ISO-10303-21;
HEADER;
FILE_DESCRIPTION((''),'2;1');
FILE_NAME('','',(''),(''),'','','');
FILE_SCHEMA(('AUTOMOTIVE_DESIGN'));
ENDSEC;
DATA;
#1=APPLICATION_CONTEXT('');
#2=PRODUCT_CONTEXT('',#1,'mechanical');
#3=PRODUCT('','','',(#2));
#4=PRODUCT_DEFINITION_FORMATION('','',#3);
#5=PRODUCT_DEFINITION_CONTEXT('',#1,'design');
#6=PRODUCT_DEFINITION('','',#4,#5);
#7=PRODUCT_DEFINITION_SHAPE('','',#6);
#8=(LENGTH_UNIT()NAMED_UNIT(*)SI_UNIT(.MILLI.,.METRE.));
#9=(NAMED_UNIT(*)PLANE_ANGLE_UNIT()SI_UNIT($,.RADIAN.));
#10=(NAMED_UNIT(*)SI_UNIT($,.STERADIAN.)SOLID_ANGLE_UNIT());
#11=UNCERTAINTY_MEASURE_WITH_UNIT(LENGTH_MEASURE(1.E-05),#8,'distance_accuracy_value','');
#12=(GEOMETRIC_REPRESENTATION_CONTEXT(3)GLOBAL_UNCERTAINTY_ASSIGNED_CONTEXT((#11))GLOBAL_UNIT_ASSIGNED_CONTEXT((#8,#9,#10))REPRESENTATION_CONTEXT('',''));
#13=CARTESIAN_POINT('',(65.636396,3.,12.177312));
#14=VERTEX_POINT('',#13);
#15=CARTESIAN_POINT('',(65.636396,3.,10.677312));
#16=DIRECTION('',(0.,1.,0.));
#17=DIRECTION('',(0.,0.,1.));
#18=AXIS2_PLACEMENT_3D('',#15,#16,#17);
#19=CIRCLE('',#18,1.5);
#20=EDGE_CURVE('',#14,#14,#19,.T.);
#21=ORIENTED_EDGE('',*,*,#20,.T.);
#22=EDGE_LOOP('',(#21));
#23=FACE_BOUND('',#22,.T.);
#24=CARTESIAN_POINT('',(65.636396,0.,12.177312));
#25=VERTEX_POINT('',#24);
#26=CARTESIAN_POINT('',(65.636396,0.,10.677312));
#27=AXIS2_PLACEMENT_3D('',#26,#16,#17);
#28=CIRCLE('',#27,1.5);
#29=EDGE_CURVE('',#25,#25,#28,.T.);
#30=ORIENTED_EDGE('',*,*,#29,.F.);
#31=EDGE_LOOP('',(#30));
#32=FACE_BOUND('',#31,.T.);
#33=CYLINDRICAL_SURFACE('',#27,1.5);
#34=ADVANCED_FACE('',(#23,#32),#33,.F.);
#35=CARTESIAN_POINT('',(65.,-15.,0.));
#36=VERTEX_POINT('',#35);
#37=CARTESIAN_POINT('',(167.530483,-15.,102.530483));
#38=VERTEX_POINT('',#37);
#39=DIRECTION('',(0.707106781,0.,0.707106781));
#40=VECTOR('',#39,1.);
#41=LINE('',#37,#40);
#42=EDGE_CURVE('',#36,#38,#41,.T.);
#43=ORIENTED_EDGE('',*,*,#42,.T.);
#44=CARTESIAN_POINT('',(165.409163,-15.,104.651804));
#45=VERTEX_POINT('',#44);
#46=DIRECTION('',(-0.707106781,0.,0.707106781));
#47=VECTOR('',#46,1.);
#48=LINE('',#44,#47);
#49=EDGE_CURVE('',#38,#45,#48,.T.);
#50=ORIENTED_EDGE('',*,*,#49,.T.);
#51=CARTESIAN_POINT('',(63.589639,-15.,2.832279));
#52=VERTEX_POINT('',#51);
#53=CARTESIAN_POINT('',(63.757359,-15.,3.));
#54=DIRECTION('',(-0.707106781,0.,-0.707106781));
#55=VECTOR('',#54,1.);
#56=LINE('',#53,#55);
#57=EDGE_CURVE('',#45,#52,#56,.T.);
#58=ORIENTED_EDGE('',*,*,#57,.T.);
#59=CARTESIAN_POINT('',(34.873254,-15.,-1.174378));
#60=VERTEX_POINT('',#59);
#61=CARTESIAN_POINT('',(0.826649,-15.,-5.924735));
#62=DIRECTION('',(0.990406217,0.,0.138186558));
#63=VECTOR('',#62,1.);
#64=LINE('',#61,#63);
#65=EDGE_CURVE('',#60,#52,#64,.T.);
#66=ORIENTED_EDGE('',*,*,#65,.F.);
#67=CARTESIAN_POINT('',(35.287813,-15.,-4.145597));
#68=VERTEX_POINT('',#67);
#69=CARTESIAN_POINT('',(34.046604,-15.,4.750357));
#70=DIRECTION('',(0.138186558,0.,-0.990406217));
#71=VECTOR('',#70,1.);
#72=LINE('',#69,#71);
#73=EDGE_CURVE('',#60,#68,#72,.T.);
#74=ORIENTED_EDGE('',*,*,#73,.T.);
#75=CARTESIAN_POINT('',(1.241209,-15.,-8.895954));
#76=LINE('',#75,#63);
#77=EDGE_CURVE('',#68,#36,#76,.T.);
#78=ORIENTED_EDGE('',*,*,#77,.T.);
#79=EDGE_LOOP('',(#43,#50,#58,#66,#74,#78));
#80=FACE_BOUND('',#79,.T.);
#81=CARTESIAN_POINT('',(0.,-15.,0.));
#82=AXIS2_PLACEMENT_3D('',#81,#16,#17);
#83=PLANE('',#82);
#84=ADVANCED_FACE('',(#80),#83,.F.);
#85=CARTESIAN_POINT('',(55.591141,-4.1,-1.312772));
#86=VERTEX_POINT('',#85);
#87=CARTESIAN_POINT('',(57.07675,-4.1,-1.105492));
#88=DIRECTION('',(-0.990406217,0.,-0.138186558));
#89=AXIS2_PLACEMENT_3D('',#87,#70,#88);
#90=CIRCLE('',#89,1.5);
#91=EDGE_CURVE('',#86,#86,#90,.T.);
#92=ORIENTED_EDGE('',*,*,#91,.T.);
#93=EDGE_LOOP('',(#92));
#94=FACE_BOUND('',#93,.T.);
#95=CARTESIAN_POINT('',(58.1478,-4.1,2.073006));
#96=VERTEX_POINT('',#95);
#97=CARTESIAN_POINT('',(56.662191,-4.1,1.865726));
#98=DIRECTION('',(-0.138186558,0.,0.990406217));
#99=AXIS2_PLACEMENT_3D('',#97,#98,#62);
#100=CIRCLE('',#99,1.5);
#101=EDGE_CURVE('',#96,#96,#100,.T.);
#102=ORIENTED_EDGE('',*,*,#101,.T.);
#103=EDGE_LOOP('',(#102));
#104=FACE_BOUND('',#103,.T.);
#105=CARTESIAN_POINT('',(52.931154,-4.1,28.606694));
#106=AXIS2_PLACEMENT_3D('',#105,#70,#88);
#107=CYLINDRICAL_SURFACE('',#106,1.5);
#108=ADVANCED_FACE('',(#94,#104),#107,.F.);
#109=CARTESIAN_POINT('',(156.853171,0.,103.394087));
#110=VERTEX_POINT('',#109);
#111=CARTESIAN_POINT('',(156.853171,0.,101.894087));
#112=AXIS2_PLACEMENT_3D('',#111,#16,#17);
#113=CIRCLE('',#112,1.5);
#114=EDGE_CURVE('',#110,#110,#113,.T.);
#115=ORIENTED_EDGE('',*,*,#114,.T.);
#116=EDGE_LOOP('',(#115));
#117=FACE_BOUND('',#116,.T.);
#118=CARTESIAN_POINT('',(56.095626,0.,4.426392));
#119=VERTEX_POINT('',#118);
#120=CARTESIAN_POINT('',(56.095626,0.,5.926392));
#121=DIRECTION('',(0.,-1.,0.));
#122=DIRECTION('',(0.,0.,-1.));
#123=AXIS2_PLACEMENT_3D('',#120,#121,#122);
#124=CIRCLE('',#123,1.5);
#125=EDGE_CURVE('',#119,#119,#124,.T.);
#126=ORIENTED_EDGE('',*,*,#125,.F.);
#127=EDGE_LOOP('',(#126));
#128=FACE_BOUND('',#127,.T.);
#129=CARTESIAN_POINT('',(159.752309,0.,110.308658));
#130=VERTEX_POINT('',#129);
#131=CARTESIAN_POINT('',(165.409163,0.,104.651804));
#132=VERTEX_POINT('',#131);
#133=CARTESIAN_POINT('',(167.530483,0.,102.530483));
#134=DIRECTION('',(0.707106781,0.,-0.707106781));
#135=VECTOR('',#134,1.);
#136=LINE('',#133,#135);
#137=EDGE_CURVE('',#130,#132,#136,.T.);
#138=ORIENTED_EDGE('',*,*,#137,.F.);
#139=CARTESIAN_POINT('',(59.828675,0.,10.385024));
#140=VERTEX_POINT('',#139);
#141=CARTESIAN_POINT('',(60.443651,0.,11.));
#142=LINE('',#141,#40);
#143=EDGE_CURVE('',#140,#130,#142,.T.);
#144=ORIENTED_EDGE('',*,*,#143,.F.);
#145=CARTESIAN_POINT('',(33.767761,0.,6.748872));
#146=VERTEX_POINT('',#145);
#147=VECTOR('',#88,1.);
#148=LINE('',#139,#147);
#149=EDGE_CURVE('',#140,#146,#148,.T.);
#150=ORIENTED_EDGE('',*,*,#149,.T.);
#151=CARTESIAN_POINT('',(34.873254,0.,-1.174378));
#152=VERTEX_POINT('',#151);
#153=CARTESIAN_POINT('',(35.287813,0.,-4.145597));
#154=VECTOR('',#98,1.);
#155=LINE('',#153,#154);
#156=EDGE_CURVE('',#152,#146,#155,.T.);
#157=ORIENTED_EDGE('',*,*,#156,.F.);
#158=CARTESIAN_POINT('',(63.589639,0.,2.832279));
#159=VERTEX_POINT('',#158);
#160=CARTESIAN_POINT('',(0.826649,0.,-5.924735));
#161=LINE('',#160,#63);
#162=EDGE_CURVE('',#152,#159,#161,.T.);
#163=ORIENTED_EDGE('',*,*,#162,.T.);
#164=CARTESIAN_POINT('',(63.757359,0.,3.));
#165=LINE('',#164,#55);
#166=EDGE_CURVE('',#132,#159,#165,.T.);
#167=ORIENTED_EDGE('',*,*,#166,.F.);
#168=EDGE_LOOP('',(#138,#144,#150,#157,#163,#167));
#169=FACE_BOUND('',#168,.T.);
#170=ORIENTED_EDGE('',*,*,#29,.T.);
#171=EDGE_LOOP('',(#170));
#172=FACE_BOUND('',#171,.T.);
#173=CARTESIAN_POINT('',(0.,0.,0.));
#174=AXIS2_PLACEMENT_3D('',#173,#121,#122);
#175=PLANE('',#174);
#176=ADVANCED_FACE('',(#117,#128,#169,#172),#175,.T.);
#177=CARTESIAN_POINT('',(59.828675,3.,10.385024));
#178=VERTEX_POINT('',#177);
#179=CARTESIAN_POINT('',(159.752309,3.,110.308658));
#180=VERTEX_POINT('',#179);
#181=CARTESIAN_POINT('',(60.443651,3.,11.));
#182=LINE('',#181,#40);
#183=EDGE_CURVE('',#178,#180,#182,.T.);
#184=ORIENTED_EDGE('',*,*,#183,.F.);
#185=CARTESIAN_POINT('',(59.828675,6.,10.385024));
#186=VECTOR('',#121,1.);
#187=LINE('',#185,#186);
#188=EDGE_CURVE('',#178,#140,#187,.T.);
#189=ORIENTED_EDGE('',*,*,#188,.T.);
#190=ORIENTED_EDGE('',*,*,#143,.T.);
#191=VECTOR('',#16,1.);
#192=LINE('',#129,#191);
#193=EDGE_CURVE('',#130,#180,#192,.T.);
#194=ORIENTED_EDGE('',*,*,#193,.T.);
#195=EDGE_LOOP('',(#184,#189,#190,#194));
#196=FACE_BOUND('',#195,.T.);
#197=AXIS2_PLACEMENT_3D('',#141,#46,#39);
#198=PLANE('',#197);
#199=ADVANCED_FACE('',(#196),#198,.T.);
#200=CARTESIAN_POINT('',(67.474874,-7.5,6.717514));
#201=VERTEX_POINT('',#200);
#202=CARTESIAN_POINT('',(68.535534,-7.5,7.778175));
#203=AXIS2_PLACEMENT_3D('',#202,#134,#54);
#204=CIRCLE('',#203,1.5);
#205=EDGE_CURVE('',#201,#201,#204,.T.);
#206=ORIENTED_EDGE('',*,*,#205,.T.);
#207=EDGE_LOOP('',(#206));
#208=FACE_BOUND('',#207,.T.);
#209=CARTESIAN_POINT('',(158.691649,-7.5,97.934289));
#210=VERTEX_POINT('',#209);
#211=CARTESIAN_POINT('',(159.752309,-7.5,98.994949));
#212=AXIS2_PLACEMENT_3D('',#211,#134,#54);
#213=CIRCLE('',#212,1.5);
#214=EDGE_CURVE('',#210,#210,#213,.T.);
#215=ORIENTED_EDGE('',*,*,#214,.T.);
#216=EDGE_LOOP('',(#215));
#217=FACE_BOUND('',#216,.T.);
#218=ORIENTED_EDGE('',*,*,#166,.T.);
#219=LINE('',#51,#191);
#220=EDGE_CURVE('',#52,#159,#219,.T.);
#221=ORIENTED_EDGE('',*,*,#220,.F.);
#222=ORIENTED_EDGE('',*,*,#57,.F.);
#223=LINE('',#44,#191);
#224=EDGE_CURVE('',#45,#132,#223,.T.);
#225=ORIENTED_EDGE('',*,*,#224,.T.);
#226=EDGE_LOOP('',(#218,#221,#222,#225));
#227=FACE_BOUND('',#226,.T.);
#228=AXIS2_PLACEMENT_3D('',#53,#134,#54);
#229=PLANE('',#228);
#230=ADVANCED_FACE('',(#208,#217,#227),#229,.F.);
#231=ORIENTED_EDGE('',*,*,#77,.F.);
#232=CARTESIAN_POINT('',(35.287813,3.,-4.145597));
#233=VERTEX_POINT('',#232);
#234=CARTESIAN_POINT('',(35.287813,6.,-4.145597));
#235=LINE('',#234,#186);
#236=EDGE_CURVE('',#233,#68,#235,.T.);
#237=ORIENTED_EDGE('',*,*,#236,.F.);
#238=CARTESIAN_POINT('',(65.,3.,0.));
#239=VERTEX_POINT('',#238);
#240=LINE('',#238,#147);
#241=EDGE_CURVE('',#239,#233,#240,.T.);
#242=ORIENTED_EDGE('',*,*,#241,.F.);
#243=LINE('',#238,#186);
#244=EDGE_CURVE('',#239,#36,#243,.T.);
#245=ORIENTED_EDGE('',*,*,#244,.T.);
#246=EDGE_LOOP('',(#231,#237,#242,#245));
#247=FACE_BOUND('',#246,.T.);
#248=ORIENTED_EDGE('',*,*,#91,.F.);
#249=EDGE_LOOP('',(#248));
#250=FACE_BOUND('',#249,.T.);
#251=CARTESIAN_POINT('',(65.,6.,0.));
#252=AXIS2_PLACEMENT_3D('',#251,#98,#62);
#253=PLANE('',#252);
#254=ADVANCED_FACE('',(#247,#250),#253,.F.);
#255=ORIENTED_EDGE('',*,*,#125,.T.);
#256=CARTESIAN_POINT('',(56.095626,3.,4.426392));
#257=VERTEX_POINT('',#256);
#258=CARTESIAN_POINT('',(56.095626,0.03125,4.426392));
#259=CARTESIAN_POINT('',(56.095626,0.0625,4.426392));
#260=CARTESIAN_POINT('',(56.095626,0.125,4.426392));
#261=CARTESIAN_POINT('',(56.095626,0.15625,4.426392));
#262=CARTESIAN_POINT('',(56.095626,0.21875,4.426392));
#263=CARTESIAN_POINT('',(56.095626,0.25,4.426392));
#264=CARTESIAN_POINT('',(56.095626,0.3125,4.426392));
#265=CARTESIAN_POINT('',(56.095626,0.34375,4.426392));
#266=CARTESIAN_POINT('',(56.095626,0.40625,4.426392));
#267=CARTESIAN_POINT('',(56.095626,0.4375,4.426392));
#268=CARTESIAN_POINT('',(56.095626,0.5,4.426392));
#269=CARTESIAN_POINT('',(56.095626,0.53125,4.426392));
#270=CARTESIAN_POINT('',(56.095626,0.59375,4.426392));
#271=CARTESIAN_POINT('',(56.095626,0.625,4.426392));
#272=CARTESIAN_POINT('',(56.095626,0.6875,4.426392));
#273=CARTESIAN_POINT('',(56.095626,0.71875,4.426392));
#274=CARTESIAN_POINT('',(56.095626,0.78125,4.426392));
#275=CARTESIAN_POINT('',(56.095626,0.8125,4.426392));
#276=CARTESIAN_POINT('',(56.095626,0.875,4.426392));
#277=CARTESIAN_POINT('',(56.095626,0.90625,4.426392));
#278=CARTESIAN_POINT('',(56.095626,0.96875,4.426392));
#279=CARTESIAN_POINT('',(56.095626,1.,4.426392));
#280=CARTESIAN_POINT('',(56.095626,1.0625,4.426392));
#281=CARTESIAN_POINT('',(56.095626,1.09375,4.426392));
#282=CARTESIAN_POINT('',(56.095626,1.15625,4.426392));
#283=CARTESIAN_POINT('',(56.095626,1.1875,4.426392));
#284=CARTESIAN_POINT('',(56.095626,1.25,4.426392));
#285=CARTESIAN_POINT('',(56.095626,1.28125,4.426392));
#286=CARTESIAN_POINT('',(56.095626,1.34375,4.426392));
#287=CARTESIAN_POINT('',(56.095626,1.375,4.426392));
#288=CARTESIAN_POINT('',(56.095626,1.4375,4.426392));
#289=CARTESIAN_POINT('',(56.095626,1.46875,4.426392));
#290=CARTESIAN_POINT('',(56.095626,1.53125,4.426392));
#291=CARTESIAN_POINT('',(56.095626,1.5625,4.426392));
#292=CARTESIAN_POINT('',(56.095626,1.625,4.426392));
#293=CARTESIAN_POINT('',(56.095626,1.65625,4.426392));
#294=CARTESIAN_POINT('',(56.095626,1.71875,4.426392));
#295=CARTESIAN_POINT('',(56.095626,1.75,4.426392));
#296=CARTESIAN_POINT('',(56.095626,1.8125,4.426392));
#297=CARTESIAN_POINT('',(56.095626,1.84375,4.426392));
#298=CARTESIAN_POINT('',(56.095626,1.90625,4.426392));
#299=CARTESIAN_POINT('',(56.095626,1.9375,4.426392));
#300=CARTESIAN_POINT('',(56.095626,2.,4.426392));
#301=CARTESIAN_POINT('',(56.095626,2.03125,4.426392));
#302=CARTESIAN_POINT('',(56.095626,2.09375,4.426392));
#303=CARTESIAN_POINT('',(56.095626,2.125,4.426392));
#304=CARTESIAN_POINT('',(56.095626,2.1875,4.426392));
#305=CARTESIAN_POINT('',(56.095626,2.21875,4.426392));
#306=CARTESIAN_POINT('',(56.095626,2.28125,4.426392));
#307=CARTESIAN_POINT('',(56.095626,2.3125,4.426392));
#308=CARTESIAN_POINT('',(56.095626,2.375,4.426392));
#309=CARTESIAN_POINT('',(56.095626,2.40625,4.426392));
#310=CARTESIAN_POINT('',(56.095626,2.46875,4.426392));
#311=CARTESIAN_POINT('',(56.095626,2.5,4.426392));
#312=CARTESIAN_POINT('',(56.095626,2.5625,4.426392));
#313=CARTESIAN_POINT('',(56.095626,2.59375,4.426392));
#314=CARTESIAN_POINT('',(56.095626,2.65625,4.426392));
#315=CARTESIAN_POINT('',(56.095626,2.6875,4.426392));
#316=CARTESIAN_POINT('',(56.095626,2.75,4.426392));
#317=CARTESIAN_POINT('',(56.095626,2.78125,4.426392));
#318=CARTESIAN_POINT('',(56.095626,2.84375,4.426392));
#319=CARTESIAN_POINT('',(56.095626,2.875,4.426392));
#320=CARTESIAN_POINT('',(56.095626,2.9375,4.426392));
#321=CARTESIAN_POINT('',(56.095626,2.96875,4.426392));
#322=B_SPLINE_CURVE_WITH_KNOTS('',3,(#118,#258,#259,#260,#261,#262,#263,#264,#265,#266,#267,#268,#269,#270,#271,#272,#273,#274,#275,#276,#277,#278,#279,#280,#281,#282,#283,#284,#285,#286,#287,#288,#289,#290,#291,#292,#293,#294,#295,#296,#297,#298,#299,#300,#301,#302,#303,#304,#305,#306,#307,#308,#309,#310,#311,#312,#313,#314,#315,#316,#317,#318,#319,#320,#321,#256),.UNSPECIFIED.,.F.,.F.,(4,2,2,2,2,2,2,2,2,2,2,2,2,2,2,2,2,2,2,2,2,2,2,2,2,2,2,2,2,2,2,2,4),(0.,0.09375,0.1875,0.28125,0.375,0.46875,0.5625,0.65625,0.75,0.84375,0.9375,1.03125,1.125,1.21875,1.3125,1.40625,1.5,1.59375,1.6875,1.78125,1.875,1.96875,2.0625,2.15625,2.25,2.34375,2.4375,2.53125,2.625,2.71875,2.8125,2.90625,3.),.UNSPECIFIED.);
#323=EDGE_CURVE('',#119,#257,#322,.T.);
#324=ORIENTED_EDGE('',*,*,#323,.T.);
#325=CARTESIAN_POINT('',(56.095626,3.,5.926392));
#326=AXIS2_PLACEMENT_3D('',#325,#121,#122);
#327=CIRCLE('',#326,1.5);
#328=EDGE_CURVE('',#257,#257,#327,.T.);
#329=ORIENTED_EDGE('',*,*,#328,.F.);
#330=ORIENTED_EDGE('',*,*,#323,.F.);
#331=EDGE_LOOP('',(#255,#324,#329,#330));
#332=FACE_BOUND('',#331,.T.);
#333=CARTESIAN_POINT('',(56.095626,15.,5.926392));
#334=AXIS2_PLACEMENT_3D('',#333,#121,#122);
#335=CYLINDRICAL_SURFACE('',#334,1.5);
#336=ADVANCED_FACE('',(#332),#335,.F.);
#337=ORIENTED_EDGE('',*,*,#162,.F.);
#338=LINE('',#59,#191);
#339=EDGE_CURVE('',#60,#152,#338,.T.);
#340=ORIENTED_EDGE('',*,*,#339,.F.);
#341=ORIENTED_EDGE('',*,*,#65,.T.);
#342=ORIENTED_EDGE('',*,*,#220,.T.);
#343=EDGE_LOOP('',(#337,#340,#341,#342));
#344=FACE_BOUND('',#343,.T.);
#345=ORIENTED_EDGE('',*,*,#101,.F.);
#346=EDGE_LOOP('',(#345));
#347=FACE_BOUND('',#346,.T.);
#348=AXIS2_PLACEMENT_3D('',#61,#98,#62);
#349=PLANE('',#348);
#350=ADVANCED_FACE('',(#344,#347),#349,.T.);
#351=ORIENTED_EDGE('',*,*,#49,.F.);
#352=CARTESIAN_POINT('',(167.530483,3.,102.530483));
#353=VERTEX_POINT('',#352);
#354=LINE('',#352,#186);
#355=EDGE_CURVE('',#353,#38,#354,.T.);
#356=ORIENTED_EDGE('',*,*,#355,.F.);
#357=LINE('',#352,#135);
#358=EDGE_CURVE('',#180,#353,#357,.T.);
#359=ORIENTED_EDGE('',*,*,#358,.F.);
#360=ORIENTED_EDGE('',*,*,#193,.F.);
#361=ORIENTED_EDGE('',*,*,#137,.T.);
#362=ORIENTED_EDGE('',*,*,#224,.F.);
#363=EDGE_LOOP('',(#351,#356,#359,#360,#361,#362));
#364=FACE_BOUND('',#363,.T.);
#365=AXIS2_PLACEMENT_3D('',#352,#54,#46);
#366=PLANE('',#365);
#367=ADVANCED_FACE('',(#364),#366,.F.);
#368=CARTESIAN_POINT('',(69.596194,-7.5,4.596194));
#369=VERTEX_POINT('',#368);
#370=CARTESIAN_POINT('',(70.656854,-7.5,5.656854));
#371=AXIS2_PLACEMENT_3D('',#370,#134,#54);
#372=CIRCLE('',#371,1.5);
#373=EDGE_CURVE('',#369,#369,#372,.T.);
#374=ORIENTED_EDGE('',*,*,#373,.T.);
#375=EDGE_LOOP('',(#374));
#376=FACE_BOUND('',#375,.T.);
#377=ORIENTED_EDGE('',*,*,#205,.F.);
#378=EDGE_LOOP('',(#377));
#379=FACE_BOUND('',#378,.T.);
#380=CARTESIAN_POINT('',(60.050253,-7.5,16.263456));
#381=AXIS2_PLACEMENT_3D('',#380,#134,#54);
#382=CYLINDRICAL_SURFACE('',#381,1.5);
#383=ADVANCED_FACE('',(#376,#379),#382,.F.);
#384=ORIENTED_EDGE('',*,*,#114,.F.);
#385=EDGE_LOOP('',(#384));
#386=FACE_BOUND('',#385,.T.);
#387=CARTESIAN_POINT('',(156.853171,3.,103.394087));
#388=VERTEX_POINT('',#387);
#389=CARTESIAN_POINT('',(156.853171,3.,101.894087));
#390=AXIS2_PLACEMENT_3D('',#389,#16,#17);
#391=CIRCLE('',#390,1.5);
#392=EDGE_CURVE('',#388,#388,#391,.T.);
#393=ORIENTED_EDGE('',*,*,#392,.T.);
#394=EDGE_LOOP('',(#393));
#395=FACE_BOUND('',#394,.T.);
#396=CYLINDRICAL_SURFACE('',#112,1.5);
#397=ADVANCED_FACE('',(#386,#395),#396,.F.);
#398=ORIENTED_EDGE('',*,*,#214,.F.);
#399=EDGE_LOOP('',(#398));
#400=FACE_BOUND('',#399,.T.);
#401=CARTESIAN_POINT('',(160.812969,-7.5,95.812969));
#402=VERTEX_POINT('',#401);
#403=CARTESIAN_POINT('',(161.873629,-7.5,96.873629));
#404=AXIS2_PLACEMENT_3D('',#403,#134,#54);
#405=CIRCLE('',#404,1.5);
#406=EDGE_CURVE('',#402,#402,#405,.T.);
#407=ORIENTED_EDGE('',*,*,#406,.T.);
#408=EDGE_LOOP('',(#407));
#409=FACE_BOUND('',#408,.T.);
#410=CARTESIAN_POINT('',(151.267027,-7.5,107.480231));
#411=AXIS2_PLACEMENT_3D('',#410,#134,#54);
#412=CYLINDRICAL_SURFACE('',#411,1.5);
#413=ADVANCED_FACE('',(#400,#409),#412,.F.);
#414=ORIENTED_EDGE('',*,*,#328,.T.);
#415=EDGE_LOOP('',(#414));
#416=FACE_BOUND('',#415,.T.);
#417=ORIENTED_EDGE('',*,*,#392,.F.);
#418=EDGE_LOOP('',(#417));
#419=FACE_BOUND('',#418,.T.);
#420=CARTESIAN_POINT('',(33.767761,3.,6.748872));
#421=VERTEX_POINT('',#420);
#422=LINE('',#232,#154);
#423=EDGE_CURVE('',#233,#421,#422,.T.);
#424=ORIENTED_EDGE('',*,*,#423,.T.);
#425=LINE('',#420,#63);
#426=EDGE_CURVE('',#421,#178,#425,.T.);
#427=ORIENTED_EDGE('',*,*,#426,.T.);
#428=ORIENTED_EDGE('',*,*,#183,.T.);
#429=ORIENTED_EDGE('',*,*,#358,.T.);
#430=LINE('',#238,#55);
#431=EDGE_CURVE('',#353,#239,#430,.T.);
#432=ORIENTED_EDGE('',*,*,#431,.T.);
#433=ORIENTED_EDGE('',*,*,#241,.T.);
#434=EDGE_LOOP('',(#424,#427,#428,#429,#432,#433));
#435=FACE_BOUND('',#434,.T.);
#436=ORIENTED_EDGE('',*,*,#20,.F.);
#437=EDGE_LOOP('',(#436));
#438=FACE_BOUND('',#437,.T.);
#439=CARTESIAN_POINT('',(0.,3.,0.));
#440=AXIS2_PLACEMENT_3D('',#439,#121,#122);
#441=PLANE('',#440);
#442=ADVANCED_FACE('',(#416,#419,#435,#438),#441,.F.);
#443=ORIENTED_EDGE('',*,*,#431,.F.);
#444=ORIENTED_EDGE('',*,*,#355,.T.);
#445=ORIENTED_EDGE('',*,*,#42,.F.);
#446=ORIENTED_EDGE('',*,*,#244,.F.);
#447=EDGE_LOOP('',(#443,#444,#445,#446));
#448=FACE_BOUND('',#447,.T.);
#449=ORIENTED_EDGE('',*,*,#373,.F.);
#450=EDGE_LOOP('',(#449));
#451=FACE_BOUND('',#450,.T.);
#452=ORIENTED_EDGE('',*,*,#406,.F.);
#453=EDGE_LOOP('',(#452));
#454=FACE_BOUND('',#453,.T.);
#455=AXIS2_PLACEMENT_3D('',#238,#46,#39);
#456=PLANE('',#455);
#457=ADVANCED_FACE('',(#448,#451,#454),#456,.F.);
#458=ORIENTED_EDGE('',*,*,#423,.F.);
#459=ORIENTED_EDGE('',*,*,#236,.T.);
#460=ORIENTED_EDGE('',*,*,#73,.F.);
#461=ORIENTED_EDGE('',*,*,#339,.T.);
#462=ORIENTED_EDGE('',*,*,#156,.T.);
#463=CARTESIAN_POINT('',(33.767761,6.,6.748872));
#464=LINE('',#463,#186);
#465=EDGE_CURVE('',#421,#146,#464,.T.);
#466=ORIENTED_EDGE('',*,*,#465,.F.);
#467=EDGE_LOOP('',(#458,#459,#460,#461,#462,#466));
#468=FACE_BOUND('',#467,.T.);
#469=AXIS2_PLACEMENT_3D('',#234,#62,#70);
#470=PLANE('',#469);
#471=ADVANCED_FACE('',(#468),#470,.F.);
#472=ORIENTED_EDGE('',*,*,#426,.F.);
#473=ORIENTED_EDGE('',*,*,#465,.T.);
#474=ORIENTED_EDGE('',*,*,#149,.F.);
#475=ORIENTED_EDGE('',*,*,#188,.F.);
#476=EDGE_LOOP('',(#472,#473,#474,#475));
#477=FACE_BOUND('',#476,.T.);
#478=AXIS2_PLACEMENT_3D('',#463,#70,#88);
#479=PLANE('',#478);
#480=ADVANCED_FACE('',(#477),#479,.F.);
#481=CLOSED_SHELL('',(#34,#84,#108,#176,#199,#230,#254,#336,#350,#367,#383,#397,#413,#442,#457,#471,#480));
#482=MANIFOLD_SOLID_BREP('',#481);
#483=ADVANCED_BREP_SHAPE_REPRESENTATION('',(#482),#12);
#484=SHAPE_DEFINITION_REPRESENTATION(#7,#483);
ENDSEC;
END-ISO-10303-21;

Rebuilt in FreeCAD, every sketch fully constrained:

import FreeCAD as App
import Part
import Sketcher

V = App.Vector
Q = App.Units.Quantity

doc = App.newDocument("Part")
body = doc.addObject("PartDesign::Body", "Body")

# Sketch on XZ plane
sketch1 = body.newObject("Sketcher::SketchObject", "Sketch")
sketch1.AttachmentSupport = (doc.getObject("XZ_Plane"), [""])
sketch1.MapMode = "FlatFace"
sketch1.addGeometry([
    Part.LineSegment(V(65, 0, 0), V(35, 0, 0)),  # 0
    Part.LineSegment(V(35, 0, 0), V(35, 8, 0)),  # 1
    Part.LineSegment(V(35, 8, 0), V(61.7, 8, 0)),  # 2
    Part.LineSegment(V(61.7, 8, 0), V(161.9, 108.2, 0)),  # 3
    Part.LineSegment(V(161.9, 108.2, 0), V(167.5, 102.5, 0)),  # 4
    Part.LineSegment(V(167.5, 102.5, 0), V(65, 0, 0)),  # 5
    Part.Circle(V(159, 99.7, 0), V(0, 0, 1), 1.5),  # 6
    Part.Circle(V(67.8, 8.5, 0), V(0, 0, 1), 1.5),  # 7
    Part.Circle(V(50, 4, 0), V(0, 0, 1), 1.5),  # 8
], False)
sketch1.addConstraint([
    Sketcher.Constraint("Coincident", 0, 2, 1, 1),
    Sketcher.Constraint("Coincident", 1, 2, 2, 1),
    Sketcher.Constraint("Coincident", 2, 2, 3, 1),
    Sketcher.Constraint("Coincident", 3, 2, 4, 1),
    Sketcher.Constraint("Coincident", 4, 2, 5, 1),
    Sketcher.Constraint("Coincident", 5, 2, 0, 1),
    Sketcher.Constraint("Horizontal", 0),
    Sketcher.Constraint("Vertical", 1),
    Sketcher.Constraint("Horizontal", 2),
    Sketcher.Constraint("Equal", 6, 7),
    Sketcher.Constraint("Equal", 7, 8),
    Sketcher.Constraint("PointOnObject", 0, 2, -1),
    Sketcher.Constraint("Perpendicular", 3, 4),
    Sketcher.Constraint("Perpendicular", 4, 5),
    Sketcher.Constraint("Diameter", 6, 3.0),
    Sketcher.Constraint("DistanceX", 0, 2, 0, 1, 30.0),
    Sketcher.Constraint("DistanceY", 1, 1, 1, 2, 8.0),
    Sketcher.Constraint("Angle", 3, Q("45 deg")),
    Sketcher.Constraint("Distance", 4, 8.0),
    Sketcher.Constraint("Distance", 5, 145.0),
    Sketcher.Constraint("DistanceX", -1, 1, 8, 3, 50.0),
    Sketcher.Constraint("DistanceY", -1, 1, 8, 3, 4.0),
    Sketcher.Constraint("DistanceX", -1, 1, 0, 2, 35.0),
    Sketcher.Constraint("DistanceX", -1, 1, 6, 3, 159.045202),
    Sketcher.Constraint("DistanceX", 7, 3, 3, 2, 94.045202),
    Sketcher.Constraint("DistanceY", 7, 3, 4, 2, 94.045202),
    Sketcher.Constraint("DistanceY", 6, 3, 3, 2, 8.485281),
])
pad1 = body.newObject("PartDesign::Pad", "Pad")
pad1.Profile = sketch1
pad1.Length = 3
pad1.Reversed = True
body2 = doc.addObject("PartDesign::Body", "Body001")

# Sketch on XZ plane
sketch2 = body2.newObject("Sketcher::SketchObject", "Sketch001")
sketch2.AttachmentSupport = (doc.getObject("XZ_Plane001"), [""])
sketch2.MapMode = "FlatFace"
sketch2.addGeometry([
    Part.LineSegment(V(-35, 0, 0), V(-65, 0, 0)),  # 0
    Part.LineSegment(V(-65, 0, 0), V(-167.5, 102.5, 0)),  # 1
    Part.LineSegment(V(-167.5, 102.5, 0), V(-161.9, 108.2, 0)),  # 2
    Part.LineSegment(V(-161.9, 108.2, 0), V(-61.7, 8, 0)),  # 3
    Part.LineSegment(V(-61.7, 8, 0), V(-35, 8, 0)),  # 4
    Part.LineSegment(V(-35, 8, 0), V(-35, 0, 0)),  # 5
    Part.Circle(V(-159, 99.7, 0), V(0, 0, 1), 1.5),  # 6
    Part.Circle(V(-67.8, 8.5, 0), V(0, 0, 1), 1.5),  # 7
    Part.Circle(V(-50, 4, 0), V(0, 0, 1), 1.5),  # 8
], False)
sketch2.addConstraint([
    Sketcher.Constraint("Coincident", 0, 2, 1, 1),
    Sketcher.Constraint("Coincident", 1, 2, 2, 1),
    Sketcher.Constraint("Coincident", 2, 2, 3, 1),
    Sketcher.Constraint("Coincident", 3, 2, 4, 1),
    Sketcher.Constraint("Coincident", 4, 2, 5, 1),
    Sketcher.Constraint("Coincident", 5, 2, 0, 1),
    Sketcher.Constraint("Horizontal", 0),
    Sketcher.Constraint("Horizontal", 4),
    Sketcher.Constraint("Vertical", 5),
    Sketcher.Constraint("Equal", 6, 7),
    Sketcher.Constraint("Equal", 7, 8),
    Sketcher.Constraint("PointOnObject", 0, 2, -1),
    Sketcher.Constraint("Perpendicular", 1, 2),
    Sketcher.Constraint("Perpendicular", 2, 3),
    Sketcher.Constraint("Diameter", 6, 3.0),
    Sketcher.Constraint("DistanceX", 0, 2, 0, 1, 30.0),
    Sketcher.Constraint("DistanceY", 5, 2, 5, 1, 8.0),
    Sketcher.Constraint("Angle", 1, Q("135 deg")),
    Sketcher.Constraint("Distance", 1, 145.0),
    Sketcher.Constraint("Distance", 2, 8.0),
    Sketcher.Constraint("DistanceX", 8, 3, -1, 1, 50.0),
    Sketcher.Constraint("DistanceY", -1, 1, 8, 3, 4.0),
    Sketcher.Constraint("DistanceX", 0, 2, -1, 1, 65.0),
    Sketcher.Constraint("DistanceX", 6, 3, -1, 1, 159.045202),
    Sketcher.Constraint("DistanceY", 7, 3, 1, 2, 94.045202),
    Sketcher.Constraint("DistanceX", 2, 2, 7, 3, 94.045202),
    Sketcher.Constraint("DistanceY", 6, 3, 2, 2, 8.485281),
])
pad2 = body2.newObject("PartDesign::Pad", "Pad001")
pad2.Profile = sketch2
pad2.Length = 3
pad2.Reversed = True
body.AllowCompound = True
doc.recompute()

boolean = body.newObject("PartDesign::Boolean", "Boolean")
boolean.Type = "Fuse"
boolean.addObjects([body2])

# Sketch on XZ plane
sketch3 = body.newObject("Sketcher::SketchObject", "Sketch002")
sketch3.AttachmentSupport = (doc.getObject("XZ_Plane"), [""])
sketch3.MapMode = "FlatFace"
sketch3.AttachmentOffset = App.Placement(V(0, 0, -3), App.Rotation())
sketch3.addGeometry([
    Part.LineSegment(V(-161.9, 108.2, 0), V(-159.8, 110.3, 0)),  # 0
    Part.LineSegment(V(-159.8, 110.3, 0), V(-60.4, 11, 0)),  # 1
    Part.LineSegment(V(-60.4, 11, 0), V(-35, 11, 0)),  # 2
    Part.LineSegment(V(-35, 11, 0), V(-35, 8, 0)),  # 3
    Part.LineSegment(V(-35, 8, 0), V(-61.7, 8, 0)),  # 4
    Part.LineSegment(V(-61.7, 8, 0), V(-161.9, 108.2, 0)),  # 5
    Part.LineSegment(V(61.7, 8, 0), V(35, 8, 0)),  # 6
    Part.LineSegment(V(35, 8, 0), V(35, 11, 0)),  # 7
    Part.LineSegment(V(35, 11, 0), V(60.4, 11, 0)),  # 8
    Part.LineSegment(V(60.4, 11, 0), V(159.8, 110.3, 0)),  # 9
    Part.LineSegment(V(159.8, 110.3, 0), V(161.9, 108.2, 0)),  # 10
    Part.LineSegment(V(161.9, 108.2, 0), V(61.7, 8, 0)),  # 11
], False)
sketch3.addConstraint([
    Sketcher.Constraint("Coincident", 0, 2, 1, 1),
    Sketcher.Constraint("Coincident", 1, 2, 2, 1),
    Sketcher.Constraint("Coincident", 2, 2, 3, 1),
    Sketcher.Constraint("Coincident", 3, 2, 4, 1),
    Sketcher.Constraint("Coincident", 4, 2, 5, 1),
    Sketcher.Constraint("Coincident", 5, 2, 0, 1),
    Sketcher.Constraint("Coincident", 6, 2, 7, 1),
    Sketcher.Constraint("Coincident", 7, 2, 8, 1),
    Sketcher.Constraint("Coincident", 8, 2, 9, 1),
    Sketcher.Constraint("Coincident", 9, 2, 10, 1),
    Sketcher.Constraint("Coincident", 10, 2, 11, 1),
    Sketcher.Constraint("Coincident", 11, 2, 6, 1),
    Sketcher.Constraint("Horizontal", 2),
    Sketcher.Constraint("Vertical", 3),
    Sketcher.Constraint("Horizontal", 4),
    Sketcher.Constraint("Horizontal", 6),
    Sketcher.Constraint("Vertical", 7),
    Sketcher.Constraint("Horizontal", 8),
    Sketcher.Constraint("Symmetric", 3, 2, 6, 2, -2),
    Sketcher.Constraint("Symmetric", 1, 2, 8, 2, -2),
    Sketcher.Constraint("Symmetric", 0, 2, 9, 2, -2),
    Sketcher.Constraint("Symmetric", 5, 2, 10, 2, -2),
    Sketcher.Constraint("Perpendicular", 0, 1),
    Sketcher.Constraint("Parallel", 1, 5),
    Sketcher.Constraint("Perpendicular", 5, 9),
    Sketcher.Constraint("Perpendicular", 10, 11),
    Sketcher.Constraint("DistanceY", 3, 2, 3, 1, 3.0),
    Sketcher.Constraint("Distance", 0, 3.0),
    Sketcher.Constraint("DistanceY", -1, 1, 1, 2, 11.0),
    Sketcher.Constraint("DistanceX", 2, 2, -1, 1, 35.0),
    Sketcher.Constraint("DistanceX", 2, 1, 2, 2, 25.443651),
    Sketcher.Constraint("Distance", 1, 140.443651),
])
pad3 = body.newObject("PartDesign::Pad", "Pad002")
pad3.Profile = sketch3
pad3.Length = 3

# Sketch on XZ plane
sketch4 = body.newObject("Sketcher::SketchObject", "Sketch003")
sketch4.AttachmentSupport = (doc.getObject("XZ_Plane"), [""])
sketch4.MapMode = "FlatFace"
sketch4.AttachmentOffset = App.Placement(V(0, 0, -3), App.Rotation())
sketch4.addGeometry([
    Part.Circle(V(-50, 7.1, 0), V(0, 0, 1), 1.5),  # 0
    Part.Circle(V(-65.6, 10.7, 0), V(0, 0, 1), 1.5),  # 1
    Part.Circle(V(-156.9, 101.9, 0), V(0, 0, 1), 1.5),  # 2
    Part.Circle(V(50, 7.1, 0), V(0, 0, 1), 1.5),  # 3
    Part.Circle(V(65.6, 10.7, 0), V(0, 0, 1), 1.5),  # 4
    Part.Circle(V(156.9, 101.9, 0), V(0, 0, 1), 1.5),  # 5
], False)
sketch4.addConstraint([
    Sketcher.Constraint("Equal", 0, 1),
    Sketcher.Constraint("Equal", 1, 2),
    Sketcher.Constraint("Equal", 2, 3),
    Sketcher.Constraint("Equal", 3, 4),
    Sketcher.Constraint("Equal", 4, 5),
    Sketcher.Constraint("Symmetric", 0, 3, 3, 3, -2),
    Sketcher.Constraint("Symmetric", 1, 3, 4, 3, -2),
    Sketcher.Constraint("Symmetric", 2, 3, 5, 3, -2),
    Sketcher.Constraint("Diameter", 0, 3.0),
    Sketcher.Constraint("DistanceX", 0, 3, -1, 1, 50.0),
    Sketcher.Constraint("DistanceY", -1, 1, 0, 3, 7.1),
    Sketcher.Constraint("DistanceX", 2, 3, -1, 1, 156.853171),
    Sketcher.Constraint("DistanceX", 1, 3, -1, 1, 65.636396),
    Sketcher.Constraint("DistanceY", -1, 1, 1, 3, 10.677312),
    Sketcher.Constraint("DistanceY", -1, 1, 2, 3, 101.894087),
])
pocket1 = body.newObject("PartDesign::Pocket", "Pocket")
pocket1.Profile = sketch4
pocket1.Length = 3
pocket1.Reversed = True

# Sketch on XZ plane
sketch5 = body.newObject("Sketcher::SketchObject", "Sketch004")
sketch5.AttachmentSupport = (doc.getObject("XZ_Plane"), [""])
sketch5.MapMode = "FlatFace"
sketch5.addGeometry([
    Part.Circle(V(-159, 99.7, 0), V(0, 0, 1), 1.5),  # 0
    Part.Circle(V(-67.8, 8.5, 0), V(0, 0, 1), 1.5),  # 1
    Part.Circle(V(-50, 4, 0), V(0, 0, 1), 1.5),  # 2
    Part.Circle(V(50, 4, 0), V(0, 0, 1), 1.5),  # 3
    Part.Circle(V(67.8, 8.5, 0), V(0, 0, 1), 1.5),  # 4
    Part.Circle(V(159, 99.7, 0), V(0, 0, 1), 1.5),  # 5
], False)
sketch5.addConstraint([
    Sketcher.Constraint("Equal", 0, 1),
    Sketcher.Constraint("Equal", 1, 2),
    Sketcher.Constraint("Equal", 2, 3),
    Sketcher.Constraint("Equal", 3, 4),
    Sketcher.Constraint("Equal", 4, 5),
    Sketcher.Constraint("Symmetric", 2, 3, 3, 3, -2),
    Sketcher.Constraint("Symmetric", 1, 3, 4, 3, -2),
    Sketcher.Constraint("Symmetric", 0, 3, 5, 3, -2),
    Sketcher.Constraint("Diameter", 0, 3.0),
    Sketcher.Constraint("DistanceX", 2, 3, -1, 1, 50.0),
    Sketcher.Constraint("DistanceY", -1, 1, 2, 3, 4.0),
    Sketcher.Constraint("DistanceX", 0, 3, -1, 1, 159.045202),
    Sketcher.Constraint("DistanceY", -1, 1, 1, 3, 8.485281),
    Sketcher.Constraint("DistanceX", 0, 3, 4, 3, 226.873629),
    Sketcher.Constraint("DistanceY", -1, 1, 0, 3, 99.702056),
])
pad4 = body.newObject("PartDesign::Pad", "Pad003")
pad4.Profile = sketch5
pad4.Length = 3
pad4.Reversed = True

# Sketch on XZ plane
sketch6 = body.newObject("Sketcher::SketchObject", "Sketch005")
sketch6.AttachmentSupport = (doc.getObject("XZ_Plane"), [""])
sketch6.MapMode = "FlatFace"
sketch6.addGeometry([
    Part.LineSegment(V(-167.5, 102.5, 0), V(-65, 0, 0)),  # 0
    Part.LineSegment(V(-65, 0, 0), V(-35, 0, 0)),  # 1
    Part.LineSegment(V(-35, 0, 0), V(-35, 3, 0)),  # 2
    Part.LineSegment(V(-35, 3, 0), V(-63.8, 3, 0)),  # 3
    Part.LineSegment(V(-63.8, 3, 0), V(-165.4, 104.7, 0)),  # 4
    Part.LineSegment(V(-165.4, 104.7, 0), V(-167.5, 102.5, 0)),  # 5
    Part.LineSegment(V(35, 3, 0), V(35, 0, 0)),  # 6
    Part.LineSegment(V(35, 0, 0), V(65, 0, 0)),  # 7
    Part.LineSegment(V(65, 0, 0), V(167.5, 102.5, 0)),  # 8
    Part.LineSegment(V(167.5, 102.5, 0), V(165.4, 104.7, 0)),  # 9
    Part.LineSegment(V(165.4, 104.7, 0), V(63.8, 3, 0)),  # 10
    Part.LineSegment(V(63.8, 3, 0), V(35, 3, 0)),  # 11
], False)
sketch6.addConstraint([
    Sketcher.Constraint("Coincident", 0, 2, 1, 1),
    Sketcher.Constraint("Coincident", 1, 2, 2, 1),
    Sketcher.Constraint("Coincident", 2, 2, 3, 1),
    Sketcher.Constraint("Coincident", 3, 2, 4, 1),
    Sketcher.Constraint("Coincident", 4, 2, 5, 1),
    Sketcher.Constraint("Coincident", 5, 2, 0, 1),
    Sketcher.Constraint("Coincident", 6, 2, 7, 1),
    Sketcher.Constraint("Coincident", 7, 2, 8, 1),
    Sketcher.Constraint("Coincident", 8, 2, 9, 1),
    Sketcher.Constraint("Coincident", 9, 2, 10, 1),
    Sketcher.Constraint("Coincident", 10, 2, 11, 1),
    Sketcher.Constraint("Coincident", 11, 2, 6, 1),
    Sketcher.Constraint("Horizontal", 1),
    Sketcher.Constraint("Vertical", 2),
    Sketcher.Constraint("Horizontal", 3),
    Sketcher.Constraint("Vertical", 6),
    Sketcher.Constraint("Horizontal", 7),
    Sketcher.Constraint("Horizontal", 11),
    Sketcher.Constraint("Symmetric", 1, 2, 6, 2, -1, 1),
    Sketcher.Constraint("Symmetric", 0, 2, 7, 2, -2),
    Sketcher.Constraint("Symmetric", 5, 2, 8, 2, -2),
    Sketcher.Constraint("Symmetric", 4, 2, 9, 2, -2),
    Sketcher.Constraint("Symmetric", 3, 2, 10, 2, -2),
    Sketcher.Constraint("Parallel", 0, 4),
    Sketcher.Constraint("Perpendicular", 4, 5),
    Sketcher.Constraint("Parallel", 5, 8),
    Sketcher.Constraint("DistanceX", 1, 1, 1, 2, 30.0),
    Sketcher.Constraint("DistanceY", 2, 1, 2, 2, 3.0),
    Sketcher.Constraint("Distance", 0, 145.0),
    Sketcher.Constraint("Distance", 5, 3.0),
    Sketcher.Constraint("DistanceX", 0, 2, -1, 1, 65.0),
])
pad5 = body.newObject("PartDesign::Pad", "Pad004")
pad5.Profile = sketch6
pad5.Length = 15

# Sketch on XY plane
sketch7 = body.newObject("Sketcher::SketchObject", "Sketch006")
sketch7.AttachmentSupport = (doc.getObject("XY_Plane"), [""])
sketch7.MapMode = "FlatFace"
sketch7.addGeometry([
    Part.Circle(V(-50, -7.5, 0), V(0, 0, 1), 1.5),
    Part.Circle(V(50, -7.5, 0), V(0, 0, 1), 1.5),
], False)
sketch7.addConstraint([
    Sketcher.Constraint("Equal", 0, 1),
    Sketcher.Constraint("Symmetric", 0, 3, 1, 3, -2),
    Sketcher.Constraint("Diameter", 0, 3.0),
    Sketcher.Constraint("DistanceX", 0, 3, -1, 1, 50.0),
    Sketcher.Constraint("DistanceY", 0, 3, -1, 1, 7.5),
])
pocket2 = body.newObject("PartDesign::Pocket", "Pocket001")
pocket2.Profile = sketch7
pocket2.Length = 15
pocket2.Reversed = True

# Sketch on an angled plane
sketch8 = body.newObject("Sketcher::SketchObject", "Sketch007")
sketch8.Placement = App.Placement(V(-32.5, 0, -32.5), App.Rotation(V(-0.707106781, 0, 0.707106781), V(0, 0.999999999, 0), V(-0.707106781, 0, -0.707106781), "ZXY"))
sketch8.addGeometry([
    Part.Circle(V(183, -7.5, 0), V(0, 0, 1), 1.5),
    Part.Circle(V(54, -7.5, 0), V(0, 0, 1), 1.5),
], False)
sketch8.addConstraint([
    Sketcher.Constraint("Equal", 0, 1),
    Sketcher.Constraint("Horizontal", 0, 3, 1, 3),
    Sketcher.Constraint("Diameter", 0, 3.0),
    Sketcher.Constraint("DistanceX", 1, 3, 0, 3, 129.0),
    Sketcher.Constraint("DistanceY", 0, 3, -1, 1, 7.5),
    Sketcher.Constraint("DistanceX", -1, 1, 0, 3, 182.961941),
])
pocket3 = body.newObject("PartDesign::Pocket", "Pocket002")
pocket3.Profile = sketch8
pocket3.Length = 15

# Sketch on an angled plane
sketch9 = body.newObject("Sketcher::SketchObject", "Sketch008")
sketch9.Placement = App.Placement(V(32.5, 0, -32.5), App.Rotation(V(-0.707106781, 0, -0.707106781), V(0, 0.999999999, 0), V(0.707106781, 0, -0.707106781), "ZXY"))
sketch9.addGeometry([
    Part.Circle(V(-183, -7.5, 0), V(0, 0, 1), 1.5),
    Part.Circle(V(-54, -7.5, 0), V(0, 0, 1), 1.5),
], False)
sketch9.addConstraint([
    Sketcher.Constraint("Equal", 0, 1),
    Sketcher.Constraint("Horizontal", 0, 3, 1, 3),
    Sketcher.Constraint("Diameter", 0, 3.0),
    Sketcher.Constraint("DistanceX", 0, 3, 1, 3, 129.0),
    Sketcher.Constraint("DistanceY", 0, 3, -1, 1, 7.5),
    Sketcher.Constraint("DistanceX", 0, 3, -1, 1, 182.961941),
])
pocket4 = body.newObject("PartDesign::Pocket", "Pocket003")
pocket4.Profile = sketch9
pocket4.Length = 15

# Sketch on XZ plane
sketch10 = body.newObject("Sketcher::SketchObject", "Sketch009")
sketch10.AttachmentSupport = (doc.getObject("XZ_Plane"), [""])
sketch10.MapMode = "FlatFace"
sketch10.AttachmentOffset = App.Placement(V(0, 0, -3), App.Rotation())
sketch10.addGeometry([
    Part.LineSegment(V(-242, 0, 0), V(-242, 143, 0)),
    Part.LineSegment(V(-242, 143, 0), V(-35, 143, 0)),
    Part.LineSegment(V(-35, 143, 0), V(-35, 0, 0)),
    Part.LineSegment(V(-35, 0, 0), V(-242, 0, 0)),
], False)
sketch10.addConstraint([
    Sketcher.Constraint("Coincident", 0, 2, 1, 1),
    Sketcher.Constraint("Coincident", 1, 2, 2, 1),
    Sketcher.Constraint("Coincident", 2, 2, 3, 1),
    Sketcher.Constraint("Coincident", 3, 2, 0, 1),
    Sketcher.Constraint("Vertical", 0),
    Sketcher.Constraint("Horizontal", 1),
    Sketcher.Constraint("Vertical", 2),
    Sketcher.Constraint("Horizontal", 3),
    Sketcher.Constraint("PointOnObject", 2, 2, -1),
    Sketcher.Constraint("DistanceX", 1, 2, -1, 1, 35.0),
    Sketcher.Constraint("DistanceY", 0, 1, 0, 2, 142.865408),
    Sketcher.Constraint("DistanceX", 1, 1, 1, 2, 207.078994),
])
pocket5 = body.newObject("PartDesign::Pocket", "Pocket004")
pocket5.Profile = sketch10
pocket5.Length = 20
pocket5.Reversed = True

# Sketch on XZ plane
sketch11 = body.newObject("Sketcher::SketchObject", "Sketch010")
sketch11.AttachmentSupport = (doc.getObject("XZ_Plane"), [""])
sketch11.MapMode = "FlatFace"
sketch11.AttachmentOffset = App.Placement(V(0, 0, -3), App.Rotation())
sketch11.addGeometry([
    Part.LineSegment(V(65, 0, 0), V(35.3, -4.1, 0)),  # 0
    Part.LineSegment(V(35.3, -4.1, 0), V(33.8, 6.7, 0)),  # 1
    Part.LineSegment(V(33.8, 6.7, 0), V(59.8, 10.4, 0)),  # 2
    Part.LineSegment(V(59.8, 10.4, 0), V(60.4, 11, 0)),  # 3
    Part.LineSegment(V(60.4, 11, 0), V(65, 0, 0)),  # 4
], False)
sketch11.addConstraint([
    Sketcher.Constraint("Coincident", 0, 2, 1, 1),
    Sketcher.Constraint("Coincident", 1, 2, 2, 1),
    Sketcher.Constraint("Coincident", 2, 2, 3, 1),
    Sketcher.Constraint("Coincident", 3, 2, 4, 1),
    Sketcher.Constraint("Coincident", 4, 2, 0, 1),
    Sketcher.Constraint("PointOnObject", 4, 2, -1),
    Sketcher.Constraint("Perpendicular", 0, 1),
    Sketcher.Constraint("Perpendicular", 1, 2),
    Sketcher.Constraint("Angle", 3, Q("45 deg")),
    Sketcher.Constraint("Distance", 0, 30.0),
    Sketcher.Constraint("Distance", 1, 11.0),
    Sketcher.Constraint("DistanceY", -1, 1, 3, 2, 11.0),
    Sketcher.Constraint("DistanceX", -1, 1, 4, 2, 65.0),
    Sketcher.Constraint("Angle", 4, Q("-67.5 deg")),
    Sketcher.Constraint("Distance", 2, 26.313358),
])
pad6 = body.newObject("PartDesign::Pad", "Pad005")
pad6.Profile = sketch11
pad6.Length = 3
pad6.Reversed = True

# Sketch on XZ plane
sketch12 = body.newObject("Sketcher::SketchObject", "Sketch011")
sketch12.AttachmentSupport = (doc.getObject("XZ_Plane"), [""])
sketch12.MapMode = "FlatFace"
sketch12.AttachmentOffset = App.Placement(V(0, 0, -6), App.Rotation())
sketch12.addGeometry([
    Part.LineSegment(V(35, 6.9, 0), V(35, 11, 0)),
    Part.LineSegment(V(35, 11, 0), V(60.4, 11, 0)),
    Part.LineSegment(V(60.4, 11, 0), V(59.8, 10.4, 0)),
    Part.LineSegment(V(59.8, 10.4, 0), V(35, 6.9, 0)),
], False)
sketch12.addConstraint([
    Sketcher.Constraint("Coincident", 0, 2, 1, 1),
    Sketcher.Constraint("Coincident", 1, 2, 2, 1),
    Sketcher.Constraint("Coincident", 2, 2, 3, 1),
    Sketcher.Constraint("Coincident", 3, 2, 0, 1),
    Sketcher.Constraint("Vertical", 0),
    Sketcher.Constraint("Horizontal", 1),
    Sketcher.Constraint("Angle", 2, Q("-135 deg")),
    Sketcher.Constraint("DistanceX", -1, 1, 0, 2, 35.0),
    Sketcher.Constraint("DistanceY", -1, 1, 0, 2, 11.0),
    Sketcher.Constraint("DistanceY", 0, 1, 0, 2, 4.0792),
    Sketcher.Constraint("DistanceX", 1, 1, 1, 2, 25.443651),
    Sketcher.Constraint("Distance", 2, 0.869707),
])
pocket6 = body.newObject("PartDesign::Pocket", "Pocket005")
pocket6.Profile = sketch12
pocket6.Length = 6
pocket6.Reversed = True

# Sketch on XZ plane
sketch13 = body.newObject("Sketcher::SketchObject", "Sketch012")
sketch13.AttachmentSupport = (doc.getObject("XZ_Plane"), [""])
sketch13.MapMode = "FlatFace"
sketch13.AttachmentOffset = App.Placement(V(0, 0, -6), App.Rotation())
sketch13.addGeometry([
    Part.LineSegment(V(35.3, -4.1, 0), V(33.8, 6.7, 0)),  # 0
    Part.LineSegment(V(33.8, 6.7, 0), V(59.8, 10.4, 0)),  # 1
    Part.LineSegment(V(59.8, 10.4, 0), V(60.4, 11, 0)),  # 2
    Part.LineSegment(V(60.4, 11, 0), V(65, 0, 0)),  # 3
    Part.LineSegment(V(65, 0, 0), V(35.3, -4.1, 0)),  # 4
], False)
sketch13.addConstraint([
    Sketcher.Constraint("Coincident", 0, 2, 1, 1),
    Sketcher.Constraint("Coincident", 1, 2, 2, 1),
    Sketcher.Constraint("Coincident", 2, 2, 3, 1),
    Sketcher.Constraint("Coincident", 3, 2, 4, 1),
    Sketcher.Constraint("Coincident", 4, 2, 0, 1),
    Sketcher.Constraint("PointOnObject", 3, 2, -1),
    Sketcher.Constraint("Perpendicular", 0, 1),
    Sketcher.Constraint("Parallel", 1, 4),
    Sketcher.Constraint("Angle", 2, Q("45 deg")),
    Sketcher.Constraint("Distance", 0, 11.0),
    Sketcher.Constraint("Distance", 4, 30.0),
    Sketcher.Constraint("DistanceY", -1, 1, 2, 2, 11.0),
    Sketcher.Constraint("DistanceX", -1, 1, 3, 2, 65.0),
    Sketcher.Constraint("Angle", 3, Q("-67.5 deg")),
    Sketcher.Constraint("Distance", 1, 26.313358),
])
pad7 = body.newObject("PartDesign::Pad", "Pad006")
pad7.Profile = sketch13
pad7.Length = 6

# Sketch on XZ plane
sketch14 = body.newObject("Sketcher::SketchObject", "Sketch013")
sketch14.AttachmentSupport = (doc.getObject("XZ_Plane"), [""])
sketch14.MapMode = "FlatFace"
sketch14.AttachmentOffset = App.Placement(V(0, 0, -6), App.Rotation())
sketch14.addGeometry([
    Part.LineSegment(V(32, -7, 0), V(32, 23, 0)),
    Part.LineSegment(V(32, 23, 0), V(68, 23, 0)),
    Part.LineSegment(V(68, 23, 0), V(68, -7, 0)),
    Part.LineSegment(V(68, -7, 0), V(32, -7, 0)),
], False)
sketch14.addConstraint([
    Sketcher.Constraint("Coincident", 0, 2, 1, 1),
    Sketcher.Constraint("Coincident", 1, 2, 2, 1),
    Sketcher.Constraint("Coincident", 2, 2, 3, 1),
    Sketcher.Constraint("Coincident", 3, 2, 0, 1),
    Sketcher.Constraint("Vertical", 0),
    Sketcher.Constraint("Horizontal", 1),
    Sketcher.Constraint("Vertical", 2),
    Sketcher.Constraint("Horizontal", 3),
    Sketcher.Constraint("DistanceX", 1, 1, 1, 2, 35.32223),
    Sketcher.Constraint("DistanceY", 0, 1, 0, 2, 29.345994),
    Sketcher.Constraint("DistanceX", -1, 1, 0, 2, 32.198649),
    Sketcher.Constraint("DistanceY", 2, 2, -1, 1, 6.798819),
])
pocket7 = body.newObject("PartDesign::Pocket", "Pocket006")
pocket7.Profile = sketch14
pocket7.Length = 3
pocket7.Reversed = True

# Sketch on an angled plane
sketch15 = body.newObject("Sketcher::SketchObject", "Sketch014")
sketch15.Placement = App.Placement(V(1.241209, 0, -8.895954), App.Rotation(V(-0.990406217, 0, -0.138186558), V(0, 0.999999999, 0), V(0.138186558, 0, -0.990406217), "ZXY"))
sketch15.addGeometry([
    Part.LineSegment(V(-64, 0, 0), V(-64, -18, 0)),
    Part.LineSegment(V(-64, -18, 0), V(-28, -18, 0)),
    Part.LineSegment(V(-28, -18, 0), V(-28, 0, 0)),
    Part.LineSegment(V(-28, 0, 0), V(-64, 0, 0)),
], False)
sketch15.addConstraint([
    Sketcher.Constraint("Coincident", 0, 2, 1, 1),
    Sketcher.Constraint("Coincident", 1, 2, 2, 1),
    Sketcher.Constraint("Coincident", 2, 2, 3, 1),
    Sketcher.Constraint("Coincident", 3, 2, 0, 1),
    Sketcher.Constraint("Vertical", 0),
    Sketcher.Constraint("Horizontal", 1),
    Sketcher.Constraint("Vertical", 2),
    Sketcher.Constraint("Horizontal", 3),
    Sketcher.Constraint("PointOnObject", 2, 2, -1),
    Sketcher.Constraint("DistanceX", 1, 1, 1, 2, 36.043333),
    Sketcher.Constraint("DistanceY", 0, 2, 0, 1, 18.319096),
    Sketcher.Constraint("DistanceX", 1, 2, -1, 1, 28.333071),
])
pocket8 = body.newObject("PartDesign::Pocket", "Pocket007")
pocket8.Profile = sketch15
pocket8.Length = 10

# Sketch on XZ plane
sketch16 = body.newObject("Sketcher::SketchObject", "Sketch015")
sketch16.AttachmentSupport = (doc.getObject("XZ_Plane"), [""])
sketch16.MapMode = "FlatFace"
sketch16.addGeometry([
    Part.LineSegment(V(35.3, -4.1, 0), V(65, 0, 0)),  # 0
    Part.LineSegment(V(65, 0, 0), V(66.3, 3.3, 0)),  # 1
    Part.LineSegment(V(66.3, 3.3, 0), V(64.5, 3.7, 0)),  # 2
    Part.LineSegment(V(64.5, 3.7, 0), V(63.6, 2.8, 0)),  # 3
    Part.LineSegment(V(63.6, 2.8, 0), V(34.9, -1.2, 0)),  # 4
    Part.LineSegment(V(34.9, -1.2, 0), V(35.3, -4.1, 0)),  # 5
], False)
sketch16.addConstraint([
    Sketcher.Constraint("Coincident", 0, 2, 1, 1),
    Sketcher.Constraint("Coincident", 1, 2, 2, 1),
    Sketcher.Constraint("Coincident", 2, 2, 3, 1),
    Sketcher.Constraint("Coincident", 3, 2, 4, 1),
    Sketcher.Constraint("Coincident", 4, 2, 5, 1),
    Sketcher.Constraint("Coincident", 5, 2, 0, 1),
    Sketcher.Constraint("PointOnObject", 0, 2, -1),
    Sketcher.Constraint("Parallel", 0, 4),
    Sketcher.Constraint("Perpendicular", 4, 5),
    Sketcher.Constraint("Angle", 3, Q("-135 deg")),
    Sketcher.Constraint("Distance", 0, 30.0),
    Sketcher.Constraint("Distance", 5, 3.0),
    Sketcher.Constraint("DistanceX", -1, 1, 0, 2, 65.0),
    Sketcher.Constraint("Distance", 1, 3.525362),
    Sketcher.Constraint("Distance", 2, 1.859082),
    Sketcher.Constraint("DistanceX", -1, 1, 3, 2, 63.589639),
    Sketcher.Constraint("DistanceY", -1, 1, 3, 2, 2.832279),
    Sketcher.Constraint("DistanceX", 2, 2, 1, 2, 1.806031),
])
pad8 = body.newObject("PartDesign::Pad", "Pad007")
pad8.Profile = sketch16
pad8.Length = 15

# Sketch on XZ plane
sketch17 = body.newObject("Sketcher::SketchObject", "Sketch016")
sketch17.AttachmentSupport = (doc.getObject("XZ_Plane"), [""])
sketch17.MapMode = "FlatFace"
sketch17.AttachmentOffset = App.Placement(V(0, 0, 15), App.Rotation())
sketch17.addGeometry(Part.Circle(V(56.1, 5.9, 0), V(0, 0, 1), 1.5), False)
sketch17.addConstraint([
    Sketcher.Constraint("Diameter", 0, 3.0),
    Sketcher.Constraint("DistanceY", -1, 1, 0, 3, 5.926392),
    Sketcher.Constraint("DistanceX", -1, 1, 0, 3, 56.095626),
])
pocket9 = body.newObject("PartDesign::Pocket", "Pocket008")
pocket9.Profile = sketch17
pocket9.Length = 30

# Sketch on an angled plane
sketch18 = body.newObject("Sketcher::SketchObject", "Sketch017")
sketch18.Placement = App.Placement(V(1.241209, 0, -8.895954), App.Rotation(V(-0.990406217, 0, -0.138186558), V(0, 0.999999999, 0), V(0.138186558, 0, -0.990406217), "ZXY"))
sketch18.addGeometry(Part.Circle(V(-56.4, -4.1, 0), V(0, 0, 1), 1.5), False)
sketch18.addConstraint([
    Sketcher.Constraint("Diameter", 0, 3.0),
    Sketcher.Constraint("DistanceY", 0, 3, -1, 1, 4.1),
    Sketcher.Constraint("DistanceX", 0, 3, -1, 1, 56.376404),
])
pocket10 = body.newObject("PartDesign::Pocket", "Pocket009")
pocket10.Profile = sketch18
pocket10.Length = 30

doc.recompute()
